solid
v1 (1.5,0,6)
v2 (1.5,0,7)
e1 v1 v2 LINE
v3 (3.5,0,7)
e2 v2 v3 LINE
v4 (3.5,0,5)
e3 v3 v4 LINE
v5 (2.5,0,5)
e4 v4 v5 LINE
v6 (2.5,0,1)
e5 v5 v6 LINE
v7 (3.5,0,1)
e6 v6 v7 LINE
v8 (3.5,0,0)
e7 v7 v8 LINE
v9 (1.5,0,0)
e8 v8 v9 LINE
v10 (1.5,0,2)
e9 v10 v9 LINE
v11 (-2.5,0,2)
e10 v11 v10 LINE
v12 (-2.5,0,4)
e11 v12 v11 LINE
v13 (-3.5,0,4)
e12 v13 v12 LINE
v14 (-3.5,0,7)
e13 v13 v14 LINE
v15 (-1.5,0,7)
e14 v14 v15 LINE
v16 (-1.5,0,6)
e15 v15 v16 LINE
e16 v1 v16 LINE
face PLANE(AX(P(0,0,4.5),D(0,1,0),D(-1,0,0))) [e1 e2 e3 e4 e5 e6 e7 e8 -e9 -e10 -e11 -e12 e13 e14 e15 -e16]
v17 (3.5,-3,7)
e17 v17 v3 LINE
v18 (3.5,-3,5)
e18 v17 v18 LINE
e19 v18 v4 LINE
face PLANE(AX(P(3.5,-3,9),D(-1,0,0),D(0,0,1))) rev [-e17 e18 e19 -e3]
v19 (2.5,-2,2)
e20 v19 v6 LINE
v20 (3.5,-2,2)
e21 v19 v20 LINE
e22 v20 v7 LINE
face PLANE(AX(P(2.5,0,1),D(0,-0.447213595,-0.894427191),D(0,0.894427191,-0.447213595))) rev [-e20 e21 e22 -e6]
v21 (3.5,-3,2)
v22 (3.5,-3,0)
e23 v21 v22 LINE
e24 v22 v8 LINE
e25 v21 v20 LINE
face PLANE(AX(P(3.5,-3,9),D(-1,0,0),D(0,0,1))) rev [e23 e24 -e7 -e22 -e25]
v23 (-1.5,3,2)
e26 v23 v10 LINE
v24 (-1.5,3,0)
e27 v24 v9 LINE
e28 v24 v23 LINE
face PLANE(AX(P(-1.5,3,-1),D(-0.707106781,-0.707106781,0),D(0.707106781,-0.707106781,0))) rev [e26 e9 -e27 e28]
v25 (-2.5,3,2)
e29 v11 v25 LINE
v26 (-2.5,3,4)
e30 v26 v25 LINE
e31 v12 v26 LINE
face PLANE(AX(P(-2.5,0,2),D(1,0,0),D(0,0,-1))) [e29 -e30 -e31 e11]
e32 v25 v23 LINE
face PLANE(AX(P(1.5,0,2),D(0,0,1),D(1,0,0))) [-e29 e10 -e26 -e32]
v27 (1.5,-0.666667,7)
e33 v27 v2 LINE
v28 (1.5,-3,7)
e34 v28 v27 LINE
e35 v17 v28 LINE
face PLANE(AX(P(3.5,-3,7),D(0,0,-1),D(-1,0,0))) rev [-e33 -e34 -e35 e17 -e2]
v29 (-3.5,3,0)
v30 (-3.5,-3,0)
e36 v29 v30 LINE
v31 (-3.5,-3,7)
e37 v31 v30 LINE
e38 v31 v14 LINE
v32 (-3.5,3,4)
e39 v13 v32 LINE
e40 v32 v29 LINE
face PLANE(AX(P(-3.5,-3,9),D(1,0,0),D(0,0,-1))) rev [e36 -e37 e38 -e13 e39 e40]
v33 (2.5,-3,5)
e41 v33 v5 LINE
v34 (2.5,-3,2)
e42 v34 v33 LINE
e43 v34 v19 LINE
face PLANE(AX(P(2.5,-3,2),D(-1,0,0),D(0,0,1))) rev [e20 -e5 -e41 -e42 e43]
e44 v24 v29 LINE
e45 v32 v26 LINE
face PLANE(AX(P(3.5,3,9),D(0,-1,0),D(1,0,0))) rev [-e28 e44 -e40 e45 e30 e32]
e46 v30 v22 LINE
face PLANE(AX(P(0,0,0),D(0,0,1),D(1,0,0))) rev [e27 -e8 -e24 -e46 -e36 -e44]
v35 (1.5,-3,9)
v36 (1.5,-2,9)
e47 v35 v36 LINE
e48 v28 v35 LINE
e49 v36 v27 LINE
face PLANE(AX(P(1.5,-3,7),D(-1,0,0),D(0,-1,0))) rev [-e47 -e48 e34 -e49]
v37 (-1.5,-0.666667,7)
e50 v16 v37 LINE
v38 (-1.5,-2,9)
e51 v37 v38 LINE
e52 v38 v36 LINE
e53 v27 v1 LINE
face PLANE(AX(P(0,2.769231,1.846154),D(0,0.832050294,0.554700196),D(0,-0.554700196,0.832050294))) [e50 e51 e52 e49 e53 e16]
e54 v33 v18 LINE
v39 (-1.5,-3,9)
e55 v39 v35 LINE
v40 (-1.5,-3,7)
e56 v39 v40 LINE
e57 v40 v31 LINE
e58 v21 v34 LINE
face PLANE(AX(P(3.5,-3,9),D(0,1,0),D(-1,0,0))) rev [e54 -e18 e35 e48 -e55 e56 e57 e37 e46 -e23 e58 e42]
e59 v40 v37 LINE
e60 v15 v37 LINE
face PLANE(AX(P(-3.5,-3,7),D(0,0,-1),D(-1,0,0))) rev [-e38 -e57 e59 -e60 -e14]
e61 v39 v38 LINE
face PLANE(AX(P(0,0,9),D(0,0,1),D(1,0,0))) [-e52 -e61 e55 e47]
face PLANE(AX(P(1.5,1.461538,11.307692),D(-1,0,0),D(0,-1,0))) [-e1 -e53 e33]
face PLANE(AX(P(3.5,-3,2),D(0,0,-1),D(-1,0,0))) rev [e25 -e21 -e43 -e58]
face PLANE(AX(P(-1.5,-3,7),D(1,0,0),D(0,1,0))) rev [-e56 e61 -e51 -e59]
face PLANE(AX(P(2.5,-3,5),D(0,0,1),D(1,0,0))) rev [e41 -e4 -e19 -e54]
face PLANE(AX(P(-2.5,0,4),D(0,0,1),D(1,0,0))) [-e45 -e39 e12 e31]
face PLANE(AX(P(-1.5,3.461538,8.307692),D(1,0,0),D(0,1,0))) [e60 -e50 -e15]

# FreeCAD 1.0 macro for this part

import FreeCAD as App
import Part
import Sketcher


def add_polygon(sketch, points):
    """Adds a closed chain of lines whose ends are joined by coincident constraints."""
    first, n = sketch.GeometryCount, len(points)
    for a, b in zip(points, points[1:] + points[:1]):
        sketch.addGeometry(Part.LineSegment(App.Vector(*a, 0), App.Vector(*b, 0)), False)
    for i in range(n):
        sketch.addConstraint(Sketcher.Constraint("Coincident", first + i, 2, first + (i + 1) % n, 1))

doc = App.newDocument("Part")
body = doc.addObject("PartDesign::Body", "Body")

sketch1 = body.newObject("Sketcher::SketchObject", "Sketch")
sketch1.AttachmentSupport = (doc.getObject("XY_Plane"), [""])
sketch1.MapMode = "FlatFace"
add_polygon(sketch1, [(-3.5, 3), (-3.5, -3), (3.5, -3), (3.5, 3)])
sketch1.addConstraint([
    Sketcher.Constraint("Vertical", 0),
    Sketcher.Constraint("Horizontal", 1),
    Sketcher.Constraint("Vertical", 2),
    Sketcher.Constraint("Horizontal", 3),
    Sketcher.Constraint("Symmetric", 0, 2, 2, 2, -1, 1),
    Sketcher.Constraint("DistanceX", 1, 1, 1, 2, 7.0),
    Sketcher.Constraint("DistanceY", 0, 2, 0, 1, 6.0),
])
pad1 = body.newObject("PartDesign::Pad", "Pad")
pad1.Profile = sketch1
pad1.Length = 9

sketch2 = body.newObject("Sketcher::SketchObject", "Sketch001")
sketch2.AttachmentSupport = (doc.getObject("XZ_Plane"), [""])
sketch2.MapMode = "FlatFace"
sketch2.AttachmentOffset = App.Placement(App.Vector(0, 0, -3), App.Rotation())
add_polygon(sketch2, [(-3.5, 7), (-3.5, 9), (-1.5, 9), (-1.5, 7)])
add_polygon(sketch2, [(1.5, 7), (1.5, 9), (3.5, 9), (3.5, 7)])
add_polygon(sketch2, [(2.5, 2), (2.5, 5), (3.5, 5), (3.5, 2)])
sketch2.addConstraint([
    Sketcher.Constraint("Vertical", 0),
    Sketcher.Constraint("Horizontal", 1),
    Sketcher.Constraint("Vertical", 2),
    Sketcher.Constraint("Horizontal", 3),
    Sketcher.Constraint("Vertical", 4),
    Sketcher.Constraint("Horizontal", 5),
    Sketcher.Constraint("Vertical", 6),
    Sketcher.Constraint("Horizontal", 7),
    Sketcher.Constraint("Vertical", 8),
    Sketcher.Constraint("Horizontal", 9),
    Sketcher.Constraint("Vertical", 10),
    Sketcher.Constraint("Horizontal", 11),
    Sketcher.Constraint("Symmetric", 1, 2, 4, 2, -2),
    Sketcher.Constraint("Symmetric", 3, 2, 6, 2, -2),
    Sketcher.Constraint("Vertical", 6, 2, 9, 2),
    Sketcher.Constraint("Equal", 7, 0),
    Sketcher.Constraint("DistanceX", 1, 1, 1, 2, 2.0),
    Sketcher.Constraint("DistanceX", 9, 1, 9, 2, 1.0),
    Sketcher.Constraint("DistanceY", 8, 1, 8, 2, 3.0),
    Sketcher.Constraint("DistanceY", -1, 1, 0, 2, 9.0),
    Sketcher.Constraint("DistanceY", -1, 1, 8, 2, 5.0),
    Sketcher.Constraint("DistanceX", 1, 2, 4, 2, 3.0),
])
pocket1 = body.newObject("PartDesign::Pocket", "Pocket")
pocket1.Profile = sketch2
pocket1.Type = "ThroughAll"
pocket1.Reversed = True

sketch3 = body.newObject("Sketcher::SketchObject", "Sketch002")
sketch3.AttachmentSupport = (doc.getObject("XZ_Plane"), [""])
sketch3.MapMode = "FlatFace"
sketch3.AttachmentOffset = App.Placement(App.Vector(0, 0, -3), App.Rotation())
add_polygon(sketch3, [(-5.788, -2.288), (-5.788, 11.288), (5.788, 11.288), (5.788, -2.288)])
add_polygon(sketch3, [(-3.5, 0), (1.5, 0), (1.5, 2), (-2.5, 2), (-2.5, 4), (-3.5, 4)])
sketch3.addConstraint([
    Sketcher.Constraint("Vertical", 0),
    Sketcher.Constraint("Horizontal", 1),
    Sketcher.Constraint("Vertical", 2),
    Sketcher.Constraint("Horizontal", 3),
    Sketcher.Constraint("Horizontal", 4),
    Sketcher.Constraint("Vertical", 5),
    Sketcher.Constraint("Horizontal", 6),
    Sketcher.Constraint("Vertical", 7),
    Sketcher.Constraint("Horizontal", 8),
    Sketcher.Constraint("Vertical", 9),
    Sketcher.Constraint("PointOnObject", 4, 2, -1),
    Sketcher.Constraint("Equal", 5, 7),
    Sketcher.Constraint("Equal", 6, 9),
    Sketcher.Constraint("DistanceX", 4, 1, 4, 2, 5.0),
    Sketcher.Constraint("DistanceX", 6, 2, 6, 1, 4.0),
    Sketcher.Constraint("DistanceX", -1, 1, 4, 2, 1.5),
    Sketcher.Constraint("DistanceX", 1, 1, 1, 2, 11.576),
    Sketcher.Constraint("DistanceY", 0, 1, 0, 2, 13.576),
    Sketcher.Constraint("DistanceX", 0, 2, -1, 1, 5.788),
    Sketcher.Constraint("DistanceY", -1, 1, 0, 2, 11.288),
])
pocket2 = body.newObject("PartDesign::Pocket", "Pocket001")
pocket2.Profile = sketch3
pocket2.Length = 3
pocket2.Reversed = True

sketch4 = body.newObject("Sketcher::SketchObject", "Sketch003")
sketch4.AttachmentSupport = (doc.getObject("XY_Plane"), [""])
sketch4.MapMode = "FlatFace"
sketch4.AttachmentOffset = App.Placement(App.Vector(0, 0, 2), App.Rotation())
add_polygon(sketch4, [(-1.5, 3), (1.5, 0), (1.5, 3)])
sketch4.addConstraint([
    Sketcher.Constraint("Vertical", 1),
    Sketcher.Constraint("Horizontal", 2),
    Sketcher.Constraint("PointOnObject", 0, 2, -1),
    Sketcher.Constraint("Equal", 2, 1),
    Sketcher.Constraint("DistanceX", 2, 2, 2, 1, 3.0),
    Sketcher.Constraint("DistanceX", -1, 1, 0, 2, 1.5),
])
pocket3 = body.newObject("PartDesign::Pocket", "Pocket002")
pocket3.Profile = sketch4
pocket3.Length = 3

sketch5 = body.newObject("Sketcher::SketchObject", "Sketch004")
sketch5.AttachmentSupport = (doc.getObject("YZ_Plane"), [""])
sketch5.MapMode = "FlatFace"
sketch5.AttachmentOffset = App.Placement(App.Vector(0, 0, 3.5), App.Rotation())
add_polygon(sketch5, [(-2, 2), (0, 1), (0, 2)])
sketch5.addConstraint([
    Sketcher.Constraint("Vertical", 1),
    Sketcher.Constraint("Horizontal", 2),
    Sketcher.Constraint("PointOnObject", 0, 2, -2),
    Sketcher.Constraint("DistanceX", 2, 2, 2, 1, 2.0),
    Sketcher.Constraint("DistanceY", 1, 1, 1, 2, 1.0),
    Sketcher.Constraint("DistanceY", -1, 1, 0, 2, 1.0),
])
pocket4 = body.newObject("PartDesign::Pocket", "Pocket003")
pocket4.Profile = sketch5
pocket4.Length = 1

sketch6 = body.newObject("Sketcher::SketchObject", "Sketch005")
sketch6.Placement = App.Placement(App.Vector(0, 2.769231, 1.846154), App.Rotation(App.Vector(1, 0, 0), App.Vector(0, 0.554700196, -0.832050294), App.Vector(0, 0.832050294, 0.554700196), "ZXY"))
add_polygon(sketch6, [(-1.5, -4.992302), (-1.5, -8.597853), (1.5, -8.597853), (1.5, -4.992302)])
sketch6.addConstraint([
    Sketcher.Constraint("Vertical", 0),
    Sketcher.Constraint("Horizontal", 1),
    Sketcher.Constraint("Vertical", 2),
    Sketcher.Constraint("Horizontal", 3),
    Sketcher.Constraint("DistanceX", 1, 1, 1, 2, 3.0),
    Sketcher.Constraint("DistanceX", 0, 2, -1, 1, 1.5),
    Sketcher.Constraint("DistanceY", 0, 2, 0, 1, 3.605551),
    Sketcher.Constraint("DistanceY", 2, 2, -1, 1, 4.992302),
])
pocket5 = body.newObject("PartDesign::Pocket", "Pocket004")
pocket5.Profile = sketch6
pocket5.Type = "ThroughAll"
pocket5.Reversed = True

doc.recompute()
